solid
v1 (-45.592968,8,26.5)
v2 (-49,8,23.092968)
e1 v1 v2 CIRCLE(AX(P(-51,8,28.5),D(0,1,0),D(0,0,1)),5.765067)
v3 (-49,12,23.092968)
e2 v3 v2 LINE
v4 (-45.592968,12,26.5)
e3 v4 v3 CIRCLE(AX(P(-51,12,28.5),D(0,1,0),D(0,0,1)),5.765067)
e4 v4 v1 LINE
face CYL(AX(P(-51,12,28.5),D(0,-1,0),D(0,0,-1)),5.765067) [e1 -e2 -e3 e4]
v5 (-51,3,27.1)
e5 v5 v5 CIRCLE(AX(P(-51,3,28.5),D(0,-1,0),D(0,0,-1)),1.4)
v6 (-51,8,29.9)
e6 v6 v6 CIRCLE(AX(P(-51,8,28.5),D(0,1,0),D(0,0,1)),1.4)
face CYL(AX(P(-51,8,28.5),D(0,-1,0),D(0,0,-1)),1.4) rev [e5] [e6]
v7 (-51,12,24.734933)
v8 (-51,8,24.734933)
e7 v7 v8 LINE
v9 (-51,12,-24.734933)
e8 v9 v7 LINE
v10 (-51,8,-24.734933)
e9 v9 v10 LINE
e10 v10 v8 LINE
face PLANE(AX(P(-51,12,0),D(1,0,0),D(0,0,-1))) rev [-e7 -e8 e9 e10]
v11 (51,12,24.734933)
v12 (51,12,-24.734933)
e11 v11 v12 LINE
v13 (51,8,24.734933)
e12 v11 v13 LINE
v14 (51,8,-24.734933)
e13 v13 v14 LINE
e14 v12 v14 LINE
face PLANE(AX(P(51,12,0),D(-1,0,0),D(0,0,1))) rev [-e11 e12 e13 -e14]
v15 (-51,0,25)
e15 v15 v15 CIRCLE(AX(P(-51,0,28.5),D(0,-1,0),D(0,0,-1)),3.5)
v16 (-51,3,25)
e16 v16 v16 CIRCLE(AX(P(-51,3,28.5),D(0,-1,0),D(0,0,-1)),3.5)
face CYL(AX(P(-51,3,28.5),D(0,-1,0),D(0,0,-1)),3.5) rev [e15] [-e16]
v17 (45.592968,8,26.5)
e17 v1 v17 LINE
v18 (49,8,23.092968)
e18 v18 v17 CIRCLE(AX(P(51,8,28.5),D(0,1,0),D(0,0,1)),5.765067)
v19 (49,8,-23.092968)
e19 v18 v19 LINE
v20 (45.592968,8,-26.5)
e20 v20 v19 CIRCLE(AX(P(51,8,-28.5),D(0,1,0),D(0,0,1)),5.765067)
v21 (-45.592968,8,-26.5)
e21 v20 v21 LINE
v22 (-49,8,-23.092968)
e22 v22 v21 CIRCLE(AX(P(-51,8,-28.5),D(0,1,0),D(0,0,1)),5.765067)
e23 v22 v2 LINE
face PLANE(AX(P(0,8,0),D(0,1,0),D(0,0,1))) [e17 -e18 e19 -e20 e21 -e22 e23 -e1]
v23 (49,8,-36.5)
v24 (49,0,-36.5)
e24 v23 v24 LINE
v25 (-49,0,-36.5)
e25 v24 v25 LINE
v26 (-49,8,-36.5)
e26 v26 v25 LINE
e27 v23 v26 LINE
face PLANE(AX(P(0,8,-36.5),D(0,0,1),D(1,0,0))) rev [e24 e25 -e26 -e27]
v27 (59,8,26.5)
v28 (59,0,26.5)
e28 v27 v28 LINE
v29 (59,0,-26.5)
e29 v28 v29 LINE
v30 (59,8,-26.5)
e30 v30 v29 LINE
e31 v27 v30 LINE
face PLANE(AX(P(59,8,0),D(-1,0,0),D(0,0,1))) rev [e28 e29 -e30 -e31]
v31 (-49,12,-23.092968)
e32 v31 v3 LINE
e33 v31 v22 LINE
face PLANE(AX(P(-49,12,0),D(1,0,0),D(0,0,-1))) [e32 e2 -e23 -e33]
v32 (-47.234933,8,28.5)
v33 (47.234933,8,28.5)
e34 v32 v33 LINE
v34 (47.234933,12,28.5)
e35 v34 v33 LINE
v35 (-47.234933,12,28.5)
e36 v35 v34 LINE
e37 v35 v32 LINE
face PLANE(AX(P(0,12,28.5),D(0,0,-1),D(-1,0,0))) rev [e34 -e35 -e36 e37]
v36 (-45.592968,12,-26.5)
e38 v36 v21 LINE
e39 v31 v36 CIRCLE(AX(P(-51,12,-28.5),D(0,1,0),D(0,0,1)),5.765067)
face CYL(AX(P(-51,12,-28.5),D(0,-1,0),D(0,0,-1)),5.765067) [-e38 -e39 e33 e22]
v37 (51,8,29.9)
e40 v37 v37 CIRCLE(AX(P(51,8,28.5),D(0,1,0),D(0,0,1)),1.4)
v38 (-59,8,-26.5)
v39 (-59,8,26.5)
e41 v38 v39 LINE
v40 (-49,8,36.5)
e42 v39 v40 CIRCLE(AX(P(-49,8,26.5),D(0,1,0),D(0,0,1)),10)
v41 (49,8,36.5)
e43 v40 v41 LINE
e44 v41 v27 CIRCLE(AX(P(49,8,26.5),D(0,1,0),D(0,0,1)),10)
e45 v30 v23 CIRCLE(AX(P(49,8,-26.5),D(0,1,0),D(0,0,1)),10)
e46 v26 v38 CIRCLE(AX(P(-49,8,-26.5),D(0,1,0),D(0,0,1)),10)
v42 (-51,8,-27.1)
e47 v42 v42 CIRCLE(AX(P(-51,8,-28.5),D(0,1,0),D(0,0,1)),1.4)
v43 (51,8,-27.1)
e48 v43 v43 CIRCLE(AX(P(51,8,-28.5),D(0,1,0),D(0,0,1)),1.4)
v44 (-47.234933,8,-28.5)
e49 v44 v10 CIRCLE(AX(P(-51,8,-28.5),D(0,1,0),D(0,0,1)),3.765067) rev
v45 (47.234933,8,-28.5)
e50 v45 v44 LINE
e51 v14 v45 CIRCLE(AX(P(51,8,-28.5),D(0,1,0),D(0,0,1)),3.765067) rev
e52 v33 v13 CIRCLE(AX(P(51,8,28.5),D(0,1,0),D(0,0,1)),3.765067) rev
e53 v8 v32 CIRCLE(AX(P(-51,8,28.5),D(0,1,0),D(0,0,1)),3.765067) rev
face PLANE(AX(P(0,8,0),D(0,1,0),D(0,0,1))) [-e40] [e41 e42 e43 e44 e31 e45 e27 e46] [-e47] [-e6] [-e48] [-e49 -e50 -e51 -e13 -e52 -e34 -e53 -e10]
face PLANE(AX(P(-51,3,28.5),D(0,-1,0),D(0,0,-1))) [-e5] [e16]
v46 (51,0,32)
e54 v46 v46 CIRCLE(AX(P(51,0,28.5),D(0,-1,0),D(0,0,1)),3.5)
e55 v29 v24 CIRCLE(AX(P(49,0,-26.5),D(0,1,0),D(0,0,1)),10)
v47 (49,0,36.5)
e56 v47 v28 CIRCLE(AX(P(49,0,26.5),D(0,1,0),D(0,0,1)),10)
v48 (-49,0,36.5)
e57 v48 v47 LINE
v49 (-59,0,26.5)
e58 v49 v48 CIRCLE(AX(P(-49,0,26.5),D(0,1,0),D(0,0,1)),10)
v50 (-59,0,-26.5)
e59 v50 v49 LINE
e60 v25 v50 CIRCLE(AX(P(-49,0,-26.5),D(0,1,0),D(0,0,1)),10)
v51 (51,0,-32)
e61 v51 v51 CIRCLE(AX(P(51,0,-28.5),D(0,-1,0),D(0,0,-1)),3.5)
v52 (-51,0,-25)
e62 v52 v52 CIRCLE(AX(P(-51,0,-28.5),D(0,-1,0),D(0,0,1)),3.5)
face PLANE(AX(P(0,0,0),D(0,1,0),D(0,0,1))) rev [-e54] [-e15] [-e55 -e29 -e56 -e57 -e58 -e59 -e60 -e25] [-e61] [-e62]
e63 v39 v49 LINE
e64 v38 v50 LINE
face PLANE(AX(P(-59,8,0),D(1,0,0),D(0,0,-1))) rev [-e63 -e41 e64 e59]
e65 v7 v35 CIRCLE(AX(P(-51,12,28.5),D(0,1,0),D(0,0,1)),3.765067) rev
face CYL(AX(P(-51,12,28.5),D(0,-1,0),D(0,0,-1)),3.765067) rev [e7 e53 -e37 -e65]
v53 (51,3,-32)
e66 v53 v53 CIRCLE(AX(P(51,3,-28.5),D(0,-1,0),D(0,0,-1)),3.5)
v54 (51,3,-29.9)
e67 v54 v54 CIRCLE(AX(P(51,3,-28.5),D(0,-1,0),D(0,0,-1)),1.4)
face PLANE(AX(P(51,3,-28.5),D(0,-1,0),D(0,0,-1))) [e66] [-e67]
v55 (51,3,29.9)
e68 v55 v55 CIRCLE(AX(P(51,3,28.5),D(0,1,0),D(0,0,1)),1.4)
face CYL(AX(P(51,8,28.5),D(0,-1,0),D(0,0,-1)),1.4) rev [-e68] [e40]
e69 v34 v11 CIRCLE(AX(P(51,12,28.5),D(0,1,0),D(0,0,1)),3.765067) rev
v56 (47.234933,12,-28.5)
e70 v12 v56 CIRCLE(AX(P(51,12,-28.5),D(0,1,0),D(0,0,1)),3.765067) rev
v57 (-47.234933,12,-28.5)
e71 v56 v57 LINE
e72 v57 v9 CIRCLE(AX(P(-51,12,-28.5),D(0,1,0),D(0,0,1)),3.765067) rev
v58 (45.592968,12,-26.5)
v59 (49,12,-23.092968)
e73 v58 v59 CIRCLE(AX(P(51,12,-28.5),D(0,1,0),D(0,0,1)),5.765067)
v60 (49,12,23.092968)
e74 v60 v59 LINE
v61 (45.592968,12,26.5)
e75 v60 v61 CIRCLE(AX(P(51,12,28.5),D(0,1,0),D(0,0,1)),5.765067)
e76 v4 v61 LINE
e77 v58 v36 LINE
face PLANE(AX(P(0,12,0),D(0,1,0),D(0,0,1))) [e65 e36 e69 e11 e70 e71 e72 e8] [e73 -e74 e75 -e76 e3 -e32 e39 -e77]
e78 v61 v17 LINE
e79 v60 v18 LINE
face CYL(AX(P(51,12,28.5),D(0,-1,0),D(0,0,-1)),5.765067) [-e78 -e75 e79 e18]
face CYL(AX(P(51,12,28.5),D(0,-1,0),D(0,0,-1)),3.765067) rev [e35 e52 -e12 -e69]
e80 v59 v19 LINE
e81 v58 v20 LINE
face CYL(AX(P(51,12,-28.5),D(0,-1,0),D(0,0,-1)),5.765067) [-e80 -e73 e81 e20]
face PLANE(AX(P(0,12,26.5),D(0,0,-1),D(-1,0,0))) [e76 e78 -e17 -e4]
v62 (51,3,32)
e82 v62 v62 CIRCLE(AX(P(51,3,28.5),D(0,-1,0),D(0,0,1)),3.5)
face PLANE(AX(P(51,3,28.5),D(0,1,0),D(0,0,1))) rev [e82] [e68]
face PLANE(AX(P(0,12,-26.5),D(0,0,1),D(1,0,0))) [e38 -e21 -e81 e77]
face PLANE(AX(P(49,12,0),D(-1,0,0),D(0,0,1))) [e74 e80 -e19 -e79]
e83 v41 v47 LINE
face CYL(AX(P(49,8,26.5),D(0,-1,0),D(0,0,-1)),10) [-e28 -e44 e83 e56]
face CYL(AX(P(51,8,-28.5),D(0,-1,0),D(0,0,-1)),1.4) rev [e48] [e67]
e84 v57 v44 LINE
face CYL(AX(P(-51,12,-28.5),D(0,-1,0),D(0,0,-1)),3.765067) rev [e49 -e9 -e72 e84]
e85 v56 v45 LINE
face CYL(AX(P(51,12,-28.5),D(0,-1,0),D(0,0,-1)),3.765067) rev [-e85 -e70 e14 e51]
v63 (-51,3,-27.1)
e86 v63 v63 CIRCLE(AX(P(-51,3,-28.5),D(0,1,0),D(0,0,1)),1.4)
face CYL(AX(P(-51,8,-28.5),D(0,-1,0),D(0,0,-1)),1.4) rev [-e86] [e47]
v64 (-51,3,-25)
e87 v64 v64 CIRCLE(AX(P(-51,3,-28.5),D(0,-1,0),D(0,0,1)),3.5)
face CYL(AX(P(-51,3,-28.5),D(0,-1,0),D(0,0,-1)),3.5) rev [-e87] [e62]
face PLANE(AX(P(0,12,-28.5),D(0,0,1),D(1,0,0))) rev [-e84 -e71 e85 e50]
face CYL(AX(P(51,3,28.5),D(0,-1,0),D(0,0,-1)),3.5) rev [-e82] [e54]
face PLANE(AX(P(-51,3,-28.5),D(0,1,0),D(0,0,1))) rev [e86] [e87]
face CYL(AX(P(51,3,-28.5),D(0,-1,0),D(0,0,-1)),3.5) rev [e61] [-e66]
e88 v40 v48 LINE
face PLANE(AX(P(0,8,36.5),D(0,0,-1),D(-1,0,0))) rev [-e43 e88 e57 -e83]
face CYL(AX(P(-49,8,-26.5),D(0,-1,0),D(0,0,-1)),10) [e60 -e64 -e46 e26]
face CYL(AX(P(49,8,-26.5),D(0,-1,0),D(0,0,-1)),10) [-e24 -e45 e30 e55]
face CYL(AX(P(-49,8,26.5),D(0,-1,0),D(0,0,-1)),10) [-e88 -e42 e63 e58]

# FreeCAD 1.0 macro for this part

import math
import FreeCAD as App
import Part
import Sketcher
Q = App.Units.Quantity

doc = App.newDocument("Part")
body = doc.addObject("PartDesign::Body", "Body")

# Sketch on XZ plane
sketch1 = body.newObject("Sketcher::SketchObject", "Sketch")
sketch1.AttachmentSupport = (doc.getObject("XZ_Plane"), [""])
sketch1.MapMode = "FlatFace"
sketch1.addGeometry([
    Part.ArcOfCircle(Part.Circle(App.Vector(-49, -26.5, 0), App.Vector(0, 0, 1), 10), math.radians(180), math.radians(270)),  # 0
    Part.LineSegment(App.Vector(-59, -26.5, 0), App.Vector(-59, 26.5, 0)),  # 1
    Part.ArcOfCircle(Part.Circle(App.Vector(-49, 26.5, 0), App.Vector(0, 0, 1), 10), math.radians(90), math.radians(180)),  # 2
    Part.LineSegment(App.Vector(-49, 36.5, 0), App.Vector(49, 36.5, 0)),  # 3
    Part.ArcOfCircle(Part.Circle(App.Vector(49, 26.5, 0), App.Vector(0, 0, 1), 10), math.radians(0), math.radians(90)),  # 4
    Part.LineSegment(App.Vector(59, 26.5, 0), App.Vector(59, -26.5, 0)),  # 5
    Part.ArcOfCircle(Part.Circle(App.Vector(49, -26.5, 0), App.Vector(0, 0, 1), 10), math.radians(-90), math.radians(0)),  # 6
    Part.LineSegment(App.Vector(49, -36.5, 0), App.Vector(-49, -36.5, 0)),  # 7
    Part.Circle(App.Vector(-51, 28.5, 0), App.Vector(0, 0, 1), 1.4),  # 8
    Part.Circle(App.Vector(51, 28.5, 0), App.Vector(0, 0, 1), 1.4),  # 9
    Part.LineSegment(App.Vector(47.234933, 28.5, 0), App.Vector(-47.234933, 28.5, 0)),  # 10
    Part.ArcOfCircle(Part.Circle(App.Vector(-51, 28.5, 0), App.Vector(0, 0, 1), 3.765067), math.radians(-90), math.radians(0)),  # 11
    Part.LineSegment(App.Vector(-51, 24.734933, 0), App.Vector(-51, -24.734933, 0)),  # 12
    Part.ArcOfCircle(Part.Circle(App.Vector(-51, -28.5, 0), App.Vector(0, 0, 1), 3.765067), math.radians(0), math.radians(90)),  # 13
    Part.LineSegment(App.Vector(-47.234933, -28.5, 0), App.Vector(47.234933, -28.5, 0)),  # 14
    Part.ArcOfCircle(Part.Circle(App.Vector(51, -28.5, 0), App.Vector(0, 0, 1), 3.765067), math.radians(90), math.radians(180)),  # 15
    Part.LineSegment(App.Vector(51, -24.734933, 0), App.Vector(51, 24.734933, 0)),  # 16
    Part.ArcOfCircle(Part.Circle(App.Vector(51, 28.5, 0), App.Vector(0, 0, 1), 3.765067), math.radians(-180), math.radians(-90)),  # 17
    Part.Circle(App.Vector(-51, -28.5, 0), App.Vector(0, 0, 1), 1.4),  # 18
    Part.Circle(App.Vector(51, -28.5, 0), App.Vector(0, 0, 1), 1.4),  # 19
], False)
sketch1.addConstraint([
    Sketcher.Constraint("Tangent", 0, 1, 1, 1),
    Sketcher.Constraint("Tangent", 1, 2, 2, 2),
    Sketcher.Constraint("Tangent", 2, 1, 3, 1),
    Sketcher.Constraint("Tangent", 3, 2, 4, 2),
    Sketcher.Constraint("Tangent", 4, 1, 5, 1),
    Sketcher.Constraint("Tangent", 5, 2, 6, 2),
    Sketcher.Constraint("Tangent", 6, 1, 7, 1),
    Sketcher.Constraint("Tangent", 7, 2, 0, 2),
    Sketcher.Constraint("Coincident", 10, 2, 11, 2),
    Sketcher.Constraint("Coincident", 11, 1, 12, 1),
    Sketcher.Constraint("Coincident", 12, 2, 13, 2),
    Sketcher.Constraint("Coincident", 13, 1, 14, 1),
    Sketcher.Constraint("Coincident", 14, 2, 15, 2),
    Sketcher.Constraint("Coincident", 15, 1, 16, 1),
    Sketcher.Constraint("Coincident", 16, 2, 17, 2),
    Sketcher.Constraint("Coincident", 17, 1, 10, 1),
    Sketcher.Constraint("Vertical", 1),
    Sketcher.Constraint("Horizontal", 3),
    Sketcher.Constraint("Vertical", 5),
    Sketcher.Constraint("Horizontal", 7),
    Sketcher.Constraint("Horizontal", 10),
    Sketcher.Constraint("Vertical", 12),
    Sketcher.Constraint("Horizontal", 14),
    Sketcher.Constraint("Vertical", 16),
    Sketcher.Constraint("Coincident", 11, 3, 8, 3),
    Sketcher.Constraint("Coincident", 17, 3, 9, 3),
    Sketcher.Constraint("Coincident", 18, 3, 13, 3),
    Sketcher.Constraint("Coincident", 19, 3, 15, 3),
    Sketcher.Constraint("Equal", 0, 2),
    Sketcher.Constraint("Equal", 2, 4),
    Sketcher.Constraint("Equal", 4, 6),
    Sketcher.Constraint("Equal", 8, 9),
    Sketcher.Constraint("Equal", 11, 13),
    Sketcher.Constraint("Equal", 13, 15),
    Sketcher.Constraint("Equal", 15, 17),
    Sketcher.Constraint("Equal", 9, 18),
    Sketcher.Constraint("Equal", 18, 19),
    Sketcher.Constraint("Symmetric", 0, 3, 4, 3, -1, 1),
    Sketcher.Constraint("Symmetric", 9, 3, 13, 3, -1, 1),
    Sketcher.Constraint("Symmetric", 8, 3, 15, 3, -1, 1),
    Sketcher.Constraint("Symmetric", 8, 3, 9, 3, -2),
    Sketcher.Constraint("Horizontal", 17, 3, 10, 2),
    Sketcher.Constraint("Horizontal", 19, 3, 13, 1),
    Sketcher.Constraint("Vertical", 18, 3, 11, 1),
    Sketcher.Constraint("Vertical", 19, 3, 15, 1),
    Sketcher.Constraint("Radius", 0, Q("10 mm")),
    Sketcher.Constraint("Diameter", 8, Q("2.8 mm")),
    Sketcher.Constraint("DistanceX", 3, 1, 3, 2, Q("98 mm")),
    Sketcher.Constraint("DistanceY", 1, 1, 1, 2, Q("53 mm")),
    Sketcher.Constraint("DistanceX", 8, 3, -1, 1, Q("51 mm")),
    Sketcher.Constraint("DistanceY", 2, 3, 8, 3, Q("2 mm")),
    Sketcher.Constraint("Radius", 11, Q("3.765067 mm")),
])
pad1 = body.newObject("PartDesign::Pad", "Pad")
pad1.Profile = sketch1
pad1.Length = 8
pad1.Reversed = True
body2 = doc.addObject("PartDesign::Body", "Body001")

# Sketch on XZ plane
sketch2 = body2.newObject("Sketcher::SketchObject", "Sketch001")
sketch2.AttachmentSupport = (doc.getObject("XZ_Plane001"), [""])
sketch2.MapMode = "FlatFace"
sketch2.AttachmentOffset = App.Placement(App.Vector(0, 0, -8), App.Rotation())
sketch2.addGeometry([
    Part.LineSegment(App.Vector(51, 24.734933, 0), App.Vector(51, -24.734933, 0)),  # 0
    Part.ArcOfCircle(Part.Circle(App.Vector(51, -28.5, 0), App.Vector(0, 0, 1), 3.765067), math.radians(90), math.radians(180)),  # 1
    Part.LineSegment(App.Vector(47.234933, -28.5, 0), App.Vector(-47.234933, -28.5, 0)),  # 2
    Part.ArcOfCircle(Part.Circle(App.Vector(-51, -28.5, 0), App.Vector(0, 0, 1), 3.765067), math.radians(0), math.radians(90)),  # 3
    Part.LineSegment(App.Vector(-51, -24.734933, 0), App.Vector(-51, 24.734933, 0)),  # 4
    Part.ArcOfCircle(Part.Circle(App.Vector(-51, 28.5, 0), App.Vector(0, 0, 1), 3.765067), math.radians(-90), math.radians(0)),  # 5
    Part.LineSegment(App.Vector(-47.234933, 28.5, 0), App.Vector(47.234933, 28.5, 0)),  # 6
    Part.ArcOfCircle(Part.Circle(App.Vector(51, 28.5, 0), App.Vector(0, 0, 1), 3.765067), math.radians(-180), math.radians(-90)),  # 7
], False)
sketch2.addConstraint([
    Sketcher.Constraint("Coincident", 0, 2, 1, 1),
    Sketcher.Constraint("Coincident", 1, 2, 2, 1),
    Sketcher.Constraint("Coincident", 2, 2, 3, 1),
    Sketcher.Constraint("Coincident", 3, 2, 4, 1),
    Sketcher.Constraint("Coincident", 4, 2, 5, 1),
    Sketcher.Constraint("Coincident", 5, 2, 6, 1),
    Sketcher.Constraint("Coincident", 6, 2, 7, 1),
    Sketcher.Constraint("Coincident", 7, 2, 0, 1),
    Sketcher.Constraint("Vertical", 0),
    Sketcher.Constraint("Horizontal", 2),
    Sketcher.Constraint("Vertical", 4),
    Sketcher.Constraint("Horizontal", 6),
    Sketcher.Constraint("Equal", 1, 3),
    Sketcher.Constraint("Equal", 3, 5),
    Sketcher.Constraint("Equal", 5, 7),
    Sketcher.Constraint("Symmetric", 1, 3, 5, 3, -1, 1),
    Sketcher.Constraint("Symmetric", 3, 3, 7, 3, -1, 1),
    Sketcher.Constraint("Symmetric", 1, 3, 3, 3, -2),
    Sketcher.Constraint("Horizontal", 3, 3, 1, 2),
    Sketcher.Constraint("Horizontal", 7, 3, 5, 2),
    Sketcher.Constraint("Vertical", 7, 3, 0, 2),
    Sketcher.Constraint("Vertical", 5, 3, 3, 2),
    Sketcher.Constraint("DistanceX", -1, 1, 1, 3, Q("51 mm")),
    Sketcher.Constraint("DistanceY", 3, 3, 5, 3, Q("57 mm")),
    Sketcher.Constraint("Radius", 1, Q("3.765067 mm")),
])
pad2 = body2.newObject("PartDesign::Pad", "Pad001")
pad2.Profile = sketch2
pad2.Length = 8
doc.recompute()

boolean = body.newObject("PartDesign::Boolean", "Boolean")
boolean.Type = "Fuse"
boolean.addObjects([body2])

# Sketch on XZ plane
sketch3 = body.newObject("Sketcher::SketchObject", "Sketch002")
sketch3.AttachmentSupport = (doc.getObject("XZ_Plane"), [""])
sketch3.MapMode = "FlatFace"
sketch3.AttachmentOffset = App.Placement(App.Vector(0, 0, -8), App.Rotation())
sketch3.addGeometry([
    Part.ArcOfCircle(Part.Circle(App.Vector(51, 28.5, 0), App.Vector(0, 0, 1), 3.765067), math.radians(-180), math.radians(-90)),  # 0
    Part.LineSegment(App.Vector(51, 24.734933, 0), App.Vector(51, -24.734933, 0)),  # 1
    Part.ArcOfCircle(Part.Circle(App.Vector(51, -28.5, 0), App.Vector(0, 0, 1), 3.765067), math.radians(90), math.radians(180)),  # 2
    Part.LineSegment(App.Vector(47.234933, -28.5, 0), App.Vector(-47.234933, -28.5, 0)),  # 3
    Part.ArcOfCircle(Part.Circle(App.Vector(-51, -28.5, 0), App.Vector(0, 0, 1), 3.765067), math.radians(0), math.radians(90)),  # 4
    Part.LineSegment(App.Vector(-51, -24.734933, 0), App.Vector(-51, 24.734933, 0)),  # 5
    Part.ArcOfCircle(Part.Circle(App.Vector(-51, 28.5, 0), App.Vector(0, 0, 1), 3.765067), math.radians(-90), math.radians(0)),  # 6
    Part.LineSegment(App.Vector(-47.234933, 28.5, 0), App.Vector(47.234933, 28.5, 0)),  # 7
    Part.LineSegment(App.Vector(-49, 23.092968, 0), App.Vector(-49, -23.092968, 0)),  # 8
    Part.ArcOfCircle(Part.Circle(App.Vector(-51, -28.5, 0), App.Vector(0, 0, 1), 5.765067), math.radians(20.298862), math.radians(69.701138)),  # 9
    Part.LineSegment(App.Vector(-45.592968, -26.5, 0), App.Vector(45.592968, -26.5, 0)),  # 10
    Part.ArcOfCircle(Part.Circle(App.Vector(51, -28.5, 0), App.Vector(0, 0, 1), 5.765067), math.radians(110.298862), math.radians(159.701138)),  # 11
    Part.LineSegment(App.Vector(49, -23.092968, 0), App.Vector(49, 23.092968, 0)),  # 12
    Part.ArcOfCircle(Part.Circle(App.Vector(51, 28.5, 0), App.Vector(0, 0, 1), 5.765067), math.radians(-159.701138), math.radians(-110.298862)),  # 13
    Part.LineSegment(App.Vector(45.592968, 26.5, 0), App.Vector(-45.592968, 26.5, 0)),  # 14
    Part.ArcOfCircle(Part.Circle(App.Vector(-51, 28.5, 0), App.Vector(0, 0, 1), 5.765067), math.radians(-69.701138), math.radians(-20.298862)),  # 15
], False)
sketch3.addConstraint([
    Sketcher.Constraint("Coincident", 0, 2, 1, 1),
    Sketcher.Constraint("Coincident", 1, 2, 2, 1),
    Sketcher.Constraint("Coincident", 2, 2, 3, 1),
    Sketcher.Constraint("Coincident", 3, 2, 4, 1),
    Sketcher.Constraint("Coincident", 4, 2, 5, 1),
    Sketcher.Constraint("Coincident", 5, 2, 6, 1),
    Sketcher.Constraint("Coincident", 6, 2, 7, 1),
    Sketcher.Constraint("Coincident", 7, 2, 0, 1),
    Sketcher.Constraint("Coincident", 8, 2, 9, 2),
    Sketcher.Constraint("Coincident", 9, 1, 10, 1),
    Sketcher.Constraint("Coincident", 10, 2, 11, 2),
    Sketcher.Constraint("Coincident", 11, 1, 12, 1),
    Sketcher.Constraint("Coincident", 12, 2, 13, 2),
    Sketcher.Constraint("Coincident", 13, 1, 14, 1),
    Sketcher.Constraint("Coincident", 14, 2, 15, 2),
    Sketcher.Constraint("Coincident", 15, 1, 8, 1),
    Sketcher.Constraint("Vertical", 1),
    Sketcher.Constraint("Horizontal", 3),
    Sketcher.Constraint("Vertical", 5),
    Sketcher.Constraint("Horizontal", 7),
    Sketcher.Constraint("Vertical", 8),
    Sketcher.Constraint("Horizontal", 10),
    Sketcher.Constraint("Vertical", 12),
    Sketcher.Constraint("Horizontal", 14),
    Sketcher.Constraint("Coincident", 9, 3, 4, 3),
    Sketcher.Constraint("Coincident", 11, 3, 2, 3),
    Sketcher.Constraint("Coincident", 13, 3, 0, 3),
    Sketcher.Constraint("Coincident", 15, 3, 6, 3),
    Sketcher.Constraint("Equal", 0, 2),
    Sketcher.Constraint("Equal", 2, 4),
    Sketcher.Constraint("Equal", 4, 6),
    Sketcher.Constraint("Equal", 9, 11),
    Sketcher.Constraint("Equal", 11, 13),
    Sketcher.Constraint("Equal", 13, 15),
    Sketcher.Constraint("Symmetric", 0, 3, 4, 3, -1, 1),
    Sketcher.Constraint("Symmetric", 2, 3, 6, 3, -1, 1),
    Sketcher.Constraint("Symmetric", 2, 3, 4, 3, -2),
    Sketcher.Constraint("Horizontal", 11, 3, 2, 2),
    Sketcher.Constraint("Horizontal", 15, 3, 6, 2),
    Sketcher.Constraint("Horizontal", 8, 2, 11, 1),
    Sketcher.Constraint("Vertical", 13, 3, 0, 2),
    Sketcher.Constraint("Vertical", 15, 3, 4, 2),
    Sketcher.Constraint("Vertical", 10, 2, 13, 1),
    Sketcher.Constraint("DistanceX", -1, 1, 0, 3, Q("51 mm")),
    Sketcher.Constraint("DistanceX", 8, 2, -1, 1, Q("49 mm")),
    Sketcher.Constraint("DistanceY", 2, 3, 0, 3, Q("57 mm")),
    Sketcher.Constraint("DistanceY", 3, 2, 9, 1, Q("2 mm")),
    Sketcher.Constraint("Radius", 0, Q("3.765067 mm")),
    Sketcher.Constraint("Radius", 9, Q("5.765067 mm")),
])
pad3 = body.newObject("PartDesign::Pad", "Pad002")
pad3.Profile = sketch3
pad3.Length = 4
pad3.Reversed = True

# Sketch on XZ plane
sketch4 = body.newObject("Sketcher::SketchObject", "Sketch003")
sketch4.AttachmentSupport = (doc.getObject("XZ_Plane"), [""])
sketch4.MapMode = "FlatFace"
sketch4.addGeometry([
    Part.Circle(App.Vector(-51, 28.5, 0), App.Vector(0, 0, 1), 3.5),
    Part.Circle(App.Vector(51, 28.5, 0), App.Vector(0, 0, 1), 3.5),
    Part.Circle(App.Vector(51, -28.5, 0), App.Vector(0, 0, 1), 3.5),
    Part.Circle(App.Vector(-51, -28.5, 0), App.Vector(0, 0, 1), 3.5),
], False)
sketch4.addConstraint([
    Sketcher.Constraint("Equal", 0, 1),
    Sketcher.Constraint("Equal", 1, 2),
    Sketcher.Constraint("Equal", 2, 3),
    Sketcher.Constraint("Symmetric", 0, 3, 2, 3, -1, 1),
    Sketcher.Constraint("Symmetric", 1, 3, 3, 3, -1, 1),
    Sketcher.Constraint("Symmetric", 0, 3, 1, 3, -2),
    Sketcher.Constraint("Diameter", 0, Q("7 mm")),
    Sketcher.Constraint("DistanceX", 0, 3, -1, 1, Q("51 mm")),
    Sketcher.Constraint("DistanceY", 2, 3, 1, 3, Q("57 mm")),
])
pocket1 = body.newObject("PartDesign::Pocket", "Pocket")
pocket1.Profile = sketch4
pocket1.Length = 3

doc.recompute()
